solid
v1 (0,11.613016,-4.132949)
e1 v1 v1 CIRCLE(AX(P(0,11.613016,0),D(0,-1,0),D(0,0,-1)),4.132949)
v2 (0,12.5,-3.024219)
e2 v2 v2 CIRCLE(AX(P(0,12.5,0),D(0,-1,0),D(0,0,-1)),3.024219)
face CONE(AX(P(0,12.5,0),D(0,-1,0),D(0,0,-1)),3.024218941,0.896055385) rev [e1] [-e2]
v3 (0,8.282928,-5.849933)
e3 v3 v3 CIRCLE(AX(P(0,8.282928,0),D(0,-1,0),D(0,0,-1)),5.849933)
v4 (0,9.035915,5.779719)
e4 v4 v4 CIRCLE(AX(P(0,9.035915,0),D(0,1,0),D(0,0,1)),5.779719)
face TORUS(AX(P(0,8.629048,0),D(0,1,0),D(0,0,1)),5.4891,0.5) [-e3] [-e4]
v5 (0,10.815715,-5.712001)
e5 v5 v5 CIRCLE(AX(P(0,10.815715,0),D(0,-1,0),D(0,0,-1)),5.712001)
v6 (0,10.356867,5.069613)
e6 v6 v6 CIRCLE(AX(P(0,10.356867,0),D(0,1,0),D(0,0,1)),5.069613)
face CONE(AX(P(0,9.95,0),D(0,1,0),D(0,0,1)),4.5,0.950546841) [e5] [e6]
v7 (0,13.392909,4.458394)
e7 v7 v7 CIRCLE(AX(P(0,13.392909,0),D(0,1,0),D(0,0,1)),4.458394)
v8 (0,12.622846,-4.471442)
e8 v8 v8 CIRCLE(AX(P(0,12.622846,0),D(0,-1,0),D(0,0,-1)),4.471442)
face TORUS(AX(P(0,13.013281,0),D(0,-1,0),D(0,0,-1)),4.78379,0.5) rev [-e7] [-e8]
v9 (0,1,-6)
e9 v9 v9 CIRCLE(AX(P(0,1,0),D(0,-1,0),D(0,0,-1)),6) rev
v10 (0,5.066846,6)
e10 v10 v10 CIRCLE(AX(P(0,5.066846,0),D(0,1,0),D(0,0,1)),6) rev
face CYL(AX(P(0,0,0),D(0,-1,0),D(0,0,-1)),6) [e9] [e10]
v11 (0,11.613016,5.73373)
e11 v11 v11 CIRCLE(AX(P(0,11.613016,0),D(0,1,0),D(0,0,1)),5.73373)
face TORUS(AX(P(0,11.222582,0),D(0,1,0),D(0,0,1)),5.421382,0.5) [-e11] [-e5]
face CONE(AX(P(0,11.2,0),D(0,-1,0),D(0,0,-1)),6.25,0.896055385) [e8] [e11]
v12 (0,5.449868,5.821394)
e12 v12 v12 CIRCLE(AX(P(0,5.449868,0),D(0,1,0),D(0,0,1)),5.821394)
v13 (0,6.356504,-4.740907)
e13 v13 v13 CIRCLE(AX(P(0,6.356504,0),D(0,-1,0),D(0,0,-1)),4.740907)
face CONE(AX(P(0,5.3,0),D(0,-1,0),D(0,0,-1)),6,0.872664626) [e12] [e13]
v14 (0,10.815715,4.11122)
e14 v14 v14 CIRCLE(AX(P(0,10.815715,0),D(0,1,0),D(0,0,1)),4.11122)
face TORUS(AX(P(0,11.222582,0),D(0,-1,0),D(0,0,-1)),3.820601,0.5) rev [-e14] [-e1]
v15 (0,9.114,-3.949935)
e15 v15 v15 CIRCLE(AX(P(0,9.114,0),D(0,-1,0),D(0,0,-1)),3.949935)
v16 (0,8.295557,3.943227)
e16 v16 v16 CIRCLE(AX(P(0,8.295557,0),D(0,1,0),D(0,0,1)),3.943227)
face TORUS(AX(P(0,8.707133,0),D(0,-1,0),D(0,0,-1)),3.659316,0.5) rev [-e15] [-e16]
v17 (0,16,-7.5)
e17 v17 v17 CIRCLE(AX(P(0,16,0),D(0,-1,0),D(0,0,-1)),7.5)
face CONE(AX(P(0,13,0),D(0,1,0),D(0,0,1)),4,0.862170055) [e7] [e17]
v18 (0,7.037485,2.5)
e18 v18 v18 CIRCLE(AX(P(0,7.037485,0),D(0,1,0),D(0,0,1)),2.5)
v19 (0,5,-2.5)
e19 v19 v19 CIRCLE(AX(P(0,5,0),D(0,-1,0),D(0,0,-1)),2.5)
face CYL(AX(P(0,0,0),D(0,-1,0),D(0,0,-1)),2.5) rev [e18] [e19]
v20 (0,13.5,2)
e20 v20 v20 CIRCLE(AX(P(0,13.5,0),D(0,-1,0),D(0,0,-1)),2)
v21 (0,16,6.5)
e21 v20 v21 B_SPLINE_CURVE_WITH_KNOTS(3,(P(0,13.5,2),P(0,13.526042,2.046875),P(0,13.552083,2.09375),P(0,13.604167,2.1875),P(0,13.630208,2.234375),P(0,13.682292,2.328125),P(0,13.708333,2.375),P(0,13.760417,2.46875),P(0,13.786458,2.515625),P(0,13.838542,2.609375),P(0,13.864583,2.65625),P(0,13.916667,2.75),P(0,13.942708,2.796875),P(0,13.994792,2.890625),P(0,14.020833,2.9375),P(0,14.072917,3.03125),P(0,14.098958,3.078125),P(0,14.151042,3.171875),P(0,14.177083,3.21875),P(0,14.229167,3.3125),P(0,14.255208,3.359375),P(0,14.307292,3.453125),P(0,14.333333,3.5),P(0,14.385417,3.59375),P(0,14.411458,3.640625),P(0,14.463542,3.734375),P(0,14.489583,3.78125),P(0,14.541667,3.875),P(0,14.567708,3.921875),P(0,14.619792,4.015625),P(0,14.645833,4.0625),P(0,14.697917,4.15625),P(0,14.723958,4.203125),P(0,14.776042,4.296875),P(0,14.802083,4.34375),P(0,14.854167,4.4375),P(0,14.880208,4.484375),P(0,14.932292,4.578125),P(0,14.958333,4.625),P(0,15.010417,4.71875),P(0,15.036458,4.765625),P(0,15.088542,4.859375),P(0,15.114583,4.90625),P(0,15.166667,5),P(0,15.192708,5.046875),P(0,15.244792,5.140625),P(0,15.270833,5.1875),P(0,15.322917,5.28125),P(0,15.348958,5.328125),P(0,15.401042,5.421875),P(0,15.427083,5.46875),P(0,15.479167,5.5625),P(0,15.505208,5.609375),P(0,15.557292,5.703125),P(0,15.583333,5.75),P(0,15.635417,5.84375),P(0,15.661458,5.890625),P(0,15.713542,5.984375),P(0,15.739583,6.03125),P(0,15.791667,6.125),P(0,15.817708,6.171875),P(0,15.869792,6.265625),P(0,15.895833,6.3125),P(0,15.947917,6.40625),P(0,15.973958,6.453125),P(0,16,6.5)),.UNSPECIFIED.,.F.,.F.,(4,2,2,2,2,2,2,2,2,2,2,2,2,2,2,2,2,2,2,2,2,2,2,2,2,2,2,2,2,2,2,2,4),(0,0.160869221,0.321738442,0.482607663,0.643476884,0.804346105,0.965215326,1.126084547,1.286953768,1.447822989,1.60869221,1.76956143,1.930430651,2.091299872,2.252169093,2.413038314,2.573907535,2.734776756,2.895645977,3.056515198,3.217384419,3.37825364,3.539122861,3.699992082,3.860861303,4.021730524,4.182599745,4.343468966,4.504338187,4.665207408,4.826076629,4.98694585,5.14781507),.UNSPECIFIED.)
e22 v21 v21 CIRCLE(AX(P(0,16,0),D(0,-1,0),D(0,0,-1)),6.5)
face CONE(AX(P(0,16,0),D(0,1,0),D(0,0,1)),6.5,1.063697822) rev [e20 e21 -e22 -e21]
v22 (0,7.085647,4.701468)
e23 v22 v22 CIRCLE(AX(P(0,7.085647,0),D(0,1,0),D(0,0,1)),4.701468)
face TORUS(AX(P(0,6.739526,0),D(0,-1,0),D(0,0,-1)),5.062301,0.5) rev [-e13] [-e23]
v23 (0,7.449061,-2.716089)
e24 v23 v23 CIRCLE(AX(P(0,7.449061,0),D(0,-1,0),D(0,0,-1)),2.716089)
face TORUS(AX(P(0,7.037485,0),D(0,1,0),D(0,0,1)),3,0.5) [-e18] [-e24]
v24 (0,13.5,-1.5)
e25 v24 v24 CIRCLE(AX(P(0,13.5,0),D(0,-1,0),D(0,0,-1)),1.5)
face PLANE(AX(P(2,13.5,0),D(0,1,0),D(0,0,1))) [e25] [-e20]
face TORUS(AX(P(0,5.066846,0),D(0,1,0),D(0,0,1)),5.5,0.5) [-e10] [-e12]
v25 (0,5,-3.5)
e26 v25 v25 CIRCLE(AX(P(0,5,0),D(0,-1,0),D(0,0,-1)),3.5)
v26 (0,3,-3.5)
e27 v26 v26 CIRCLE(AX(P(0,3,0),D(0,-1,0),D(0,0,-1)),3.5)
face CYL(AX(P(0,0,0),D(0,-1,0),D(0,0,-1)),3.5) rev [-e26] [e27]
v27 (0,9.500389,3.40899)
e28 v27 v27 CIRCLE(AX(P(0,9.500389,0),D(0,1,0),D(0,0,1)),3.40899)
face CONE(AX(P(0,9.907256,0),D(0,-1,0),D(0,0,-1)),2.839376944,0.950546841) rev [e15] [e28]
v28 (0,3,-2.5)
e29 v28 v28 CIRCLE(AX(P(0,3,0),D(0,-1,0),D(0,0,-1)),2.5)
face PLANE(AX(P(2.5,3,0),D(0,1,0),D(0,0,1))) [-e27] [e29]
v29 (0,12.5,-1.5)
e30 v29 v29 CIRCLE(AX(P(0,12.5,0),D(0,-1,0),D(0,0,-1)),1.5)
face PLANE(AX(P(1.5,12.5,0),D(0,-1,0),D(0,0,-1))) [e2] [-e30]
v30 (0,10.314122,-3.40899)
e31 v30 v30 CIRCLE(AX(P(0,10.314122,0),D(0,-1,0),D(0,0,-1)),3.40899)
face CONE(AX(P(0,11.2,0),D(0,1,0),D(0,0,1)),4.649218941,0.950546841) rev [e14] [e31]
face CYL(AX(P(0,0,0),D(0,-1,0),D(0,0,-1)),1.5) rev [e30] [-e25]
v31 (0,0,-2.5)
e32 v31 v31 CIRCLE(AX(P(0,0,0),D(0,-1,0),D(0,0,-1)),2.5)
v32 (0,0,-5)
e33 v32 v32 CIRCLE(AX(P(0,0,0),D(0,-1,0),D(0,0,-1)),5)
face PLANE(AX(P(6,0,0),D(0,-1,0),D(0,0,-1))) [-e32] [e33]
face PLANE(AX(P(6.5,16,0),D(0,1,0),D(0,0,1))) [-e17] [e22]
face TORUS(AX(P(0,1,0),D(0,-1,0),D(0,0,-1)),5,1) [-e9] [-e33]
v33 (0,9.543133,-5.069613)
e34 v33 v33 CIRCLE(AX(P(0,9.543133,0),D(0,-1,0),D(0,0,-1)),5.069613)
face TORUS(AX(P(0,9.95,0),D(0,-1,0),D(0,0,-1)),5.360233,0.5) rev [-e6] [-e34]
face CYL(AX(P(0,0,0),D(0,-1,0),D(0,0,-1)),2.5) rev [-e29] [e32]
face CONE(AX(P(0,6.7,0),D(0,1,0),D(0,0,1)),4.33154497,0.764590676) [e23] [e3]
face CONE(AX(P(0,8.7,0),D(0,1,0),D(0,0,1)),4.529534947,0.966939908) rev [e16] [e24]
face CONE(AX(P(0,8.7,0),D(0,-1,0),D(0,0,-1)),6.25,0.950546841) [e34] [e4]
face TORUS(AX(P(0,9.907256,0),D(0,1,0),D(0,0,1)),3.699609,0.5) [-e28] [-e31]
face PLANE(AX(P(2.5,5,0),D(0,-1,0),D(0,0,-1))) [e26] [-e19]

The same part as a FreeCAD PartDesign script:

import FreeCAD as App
import Part
import Sketcher

V = App.Vector
Q = App.Units.Quantity


def edges_at(feature, points):
    """Names of the edges that pass closest to the given points."""
    edges = feature.Shape.Edges
    near = lambda p: min(range(len(edges)), key=lambda i: edges[i].distToShape(Part.Vertex(*p))[0])
    return sorted({f"Edge{near(p) + 1}" for p in points})

doc = App.newDocument("Part")
params = doc.addObject("Spreadsheet::Sheet", "Params")
for row, (alias, value) in enumerate([
    ("sketch1_width", "1 mm"),
    ("sketch1_height", "3 mm"),
    ("sketch1_height2", "2 mm"),
    ("sketch1_width2", "3.5 mm"),
    ("sketch1_width3", "0.5 mm"),
    ("revolution_angle", "360 deg"),
    ("fillet_radius", "0.5 mm"),
    ("fillet2_radius", "1 mm"),
], start=1):
    params.set(f"A{row}", alias)
    params.set(f"B{row}", "=" + value)
    params.setAlias(f"B{row}", alias)

body = doc.addObject("PartDesign::Body", "Body")

# Sketch on XY plane
sketch1 = body.newObject("Sketcher::SketchObject", "Sketch")
sketch1.AttachmentSupport = (doc.getObject("XY_Plane"), [""])
sketch1.MapMode = "FlatFace"
sketch1.addGeometry([
    Part.LineSegment(V(2.5, 3, 0), V(2.5, 0, 0)),  # 0
    Part.LineSegment(V(2.5, 0, 0), V(6, 0, 0)),  # 1
    Part.LineSegment(V(6, 0, 0), V(6, 5.3, 0)),  # 2
    Part.LineSegment(V(6, 5.3, 0), V(4.331545, 6.7, 0)),  # 3
    Part.LineSegment(V(4.331545, 6.7, 0), V(6.25, 8.7, 0)),  # 4
    Part.LineSegment(V(6.25, 8.7, 0), V(4.5, 9.95, 0)),  # 5
    Part.LineSegment(V(4.5, 9.95, 0), V(6.25, 11.2, 0)),  # 6
    Part.LineSegment(V(6.25, 11.2, 0), V(4, 13, 0)),  # 7
    Part.LineSegment(V(4, 13, 0), V(7.5, 16, 0)),  # 8
    Part.LineSegment(V(7.5, 16, 0), V(6.5, 16, 0)),  # 9
    Part.LineSegment(V(6.5, 16, 0), V(2, 13.5, 0)),  # 10
    Part.LineSegment(V(2, 13.5, 0), V(1.5, 13.5, 0)),  # 11
    Part.LineSegment(V(1.5, 13.5, 0), V(1.5, 12.5, 0)),  # 12
    Part.LineSegment(V(1.5, 12.5, 0), V(3.024219, 12.5, 0)),  # 13
    Part.LineSegment(V(3.024219, 12.5, 0), V(4.649219, 11.2, 0)),  # 14
    Part.LineSegment(V(4.649219, 11.2, 0), V(2.839377, 9.907256, 0)),  # 15
    Part.LineSegment(V(2.839377, 9.907256, 0), V(4.529535, 8.7, 0)),  # 16
    Part.LineSegment(V(4.529535, 8.7, 0), V(2.5, 7.3, 0)),  # 17
    Part.LineSegment(V(2.5, 7.3, 0), V(2.5, 5, 0)),  # 18
    Part.LineSegment(V(2.5, 5, 0), V(3.5, 5, 0)),  # 19
    Part.LineSegment(V(3.5, 5, 0), V(3.5, 3, 0)),  # 20
    Part.LineSegment(V(3.5, 3, 0), V(2.5, 3, 0)),  # 21
], False)
sketch1.addConstraint([
    Sketcher.Constraint("Coincident", 0, 2, 1, 1),
    Sketcher.Constraint("Coincident", 1, 2, 2, 1),
    Sketcher.Constraint("Coincident", 2, 2, 3, 1),
    Sketcher.Constraint("Coincident", 3, 2, 4, 1),
    Sketcher.Constraint("Coincident", 4, 2, 5, 1),
    Sketcher.Constraint("Coincident", 5, 2, 6, 1),
    Sketcher.Constraint("Coincident", 6, 2, 7, 1),
    Sketcher.Constraint("Coincident", 7, 2, 8, 1),
    Sketcher.Constraint("Coincident", 8, 2, 9, 1),
    Sketcher.Constraint("Coincident", 9, 2, 10, 1),
    Sketcher.Constraint("Coincident", 10, 2, 11, 1),
    Sketcher.Constraint("Coincident", 11, 2, 12, 1),
    Sketcher.Constraint("Coincident", 12, 2, 13, 1),
    Sketcher.Constraint("Coincident", 13, 2, 14, 1),
    Sketcher.Constraint("Coincident", 14, 2, 15, 1),
    Sketcher.Constraint("Coincident", 15, 2, 16, 1),
    Sketcher.Constraint("Coincident", 16, 2, 17, 1),
    Sketcher.Constraint("Coincident", 17, 2, 18, 1),
    Sketcher.Constraint("Coincident", 18, 2, 19, 1),
    Sketcher.Constraint("Coincident", 19, 2, 20, 1),
    Sketcher.Constraint("Coincident", 20, 2, 21, 1),
    Sketcher.Constraint("Coincident", 21, 2, 0, 1),
    Sketcher.Constraint("Vertical", 0),
    Sketcher.Constraint("Horizontal", 1),
    Sketcher.Constraint("Vertical", 2),
    Sketcher.Constraint("Horizontal", 9),
    Sketcher.Constraint("Horizontal", 11),
    Sketcher.Constraint("Vertical", 12),
    Sketcher.Constraint("Horizontal", 13),
    Sketcher.Constraint("Vertical", 18),
    Sketcher.Constraint("Horizontal", 19),
    Sketcher.Constraint("Vertical", 20),
    Sketcher.Constraint("Horizontal", 21),
    Sketcher.Constraint("PointOnObject", 0, 2, -1),
    Sketcher.Constraint("Parallel", 7, 14),
    Sketcher.Constraint("Parallel", 6, 15),
    Sketcher.Constraint("Parallel", 5, 16),
    Sketcher.Constraint("Horizontal", 6, 2, 14, 2),
    Sketcher.Constraint("Horizontal", 4, 2, 16, 2),
    Sketcher.Constraint("Vertical", 4, 2, 6, 2),
    Sketcher.Constraint("Vertical", 0, 2, 17, 2),
    Sketcher.Constraint("Equal", 9, 19),
    Sketcher.Constraint("Equal", 21, 12),
    Sketcher.Constraint("Equal", 5, 6),
    Sketcher.Constraint("DistanceX", 9, 2, 9, 1, 1.0),
    Sketcher.Constraint("DistanceY", 0, 2, 0, 1, 3.0),
    Sketcher.Constraint("DistanceY", 20, 2, 20, 1, 2.0),
    Sketcher.Constraint("Angle", 3, Q("140 deg")),
    Sketcher.Constraint("DistanceX", 1, 1, 1, 2, 3.5),
    Sketcher.Constraint("DistanceX", 11, 2, 11, 1, 0.5),
    Sketcher.Constraint("DistanceY", 2, 1, 2, 2, 5.3),
    Sketcher.Constraint("DistanceY", 18, 2, 18, 1, 2.3),
    Sketcher.Constraint("DistanceX", -1, 1, 1, 2, 6.0),
    Sketcher.Constraint("DistanceX", -1, 1, 7, 2, 4.0),
    Sketcher.Constraint("DistanceY", -1, 1, 7, 2, 13.0),
    Sketcher.Constraint("DistanceY", -1, 1, 8, 2, 16.0),
    Sketcher.Constraint("DistanceX", -1, 1, 10, 2, 2.0),
    Sketcher.Constraint("DistanceY", 3, 2, 4, 2, 2.0),
    Sketcher.Constraint("DistanceX", 0, 2, 5, 2, 2.0),
    Sketcher.Constraint("DistanceX", 5, 2, 8, 2, 3.0),
    Sketcher.Constraint("DistanceY", -1, 1, 3, 2, 6.7),
    Sketcher.Constraint("DistanceY", -1, 1, 6, 2, 11.2),
    Sketcher.Constraint("DistanceY", -1, 1, 10, 2, 13.5),
    Sketcher.Constraint("DistanceX", -1, 1, 4, 2, 6.25),
    Sketcher.Constraint("DistanceX", 13, 1, 13, 2, 1.524219),
    Sketcher.Constraint("Distance", 15, 2.224121),
])
sketch1.setExpression("Constraints[44]", "Params.sketch1_width")
sketch1.setExpression("Constraints[45]", "Params.sketch1_height")
sketch1.setExpression("Constraints[46]", "Params.sketch1_height2")
sketch1.setExpression("Constraints[48]", "Params.sketch1_width2")
sketch1.setExpression("Constraints[49]", "Params.sketch1_width3")
revolution = body.newObject("PartDesign::Revolution", "Revolution")
revolution.Profile = sketch1
revolution.ReferenceAxis = (sketch1, ["V_Axis"])
revolution.setExpression("Angle", "Params.revolution_angle")
doc.recompute()

fillet = body.newObject("PartDesign::Fillet", "Fillet")
fillet.Base = (revolution, edges_at(revolution, [
    (0, 5.3, 6),
    (0, 6.7, 4.332),
    (0, 8.7, 6.25),
    (0, 9.95, 4.5),
    (0, 11.2, 6.25),
    (0, 13, 4),
    (0, 11.2, 4.649),
    (0, 9.907, 2.839),
    (0, 8.7, 4.53),
    (0, 7.3, 2.5),
]))
fillet.setExpression("Radius", "Params.fillet_radius")
doc.recompute()

fillet2 = body.newObject("PartDesign::Fillet", "Fillet001")
fillet2.Base = (fillet, edges_at(fillet, [(0, 0, 6)]))
fillet2.setExpression("Radius", "Params.fillet2_radius")

doc.recompute()
